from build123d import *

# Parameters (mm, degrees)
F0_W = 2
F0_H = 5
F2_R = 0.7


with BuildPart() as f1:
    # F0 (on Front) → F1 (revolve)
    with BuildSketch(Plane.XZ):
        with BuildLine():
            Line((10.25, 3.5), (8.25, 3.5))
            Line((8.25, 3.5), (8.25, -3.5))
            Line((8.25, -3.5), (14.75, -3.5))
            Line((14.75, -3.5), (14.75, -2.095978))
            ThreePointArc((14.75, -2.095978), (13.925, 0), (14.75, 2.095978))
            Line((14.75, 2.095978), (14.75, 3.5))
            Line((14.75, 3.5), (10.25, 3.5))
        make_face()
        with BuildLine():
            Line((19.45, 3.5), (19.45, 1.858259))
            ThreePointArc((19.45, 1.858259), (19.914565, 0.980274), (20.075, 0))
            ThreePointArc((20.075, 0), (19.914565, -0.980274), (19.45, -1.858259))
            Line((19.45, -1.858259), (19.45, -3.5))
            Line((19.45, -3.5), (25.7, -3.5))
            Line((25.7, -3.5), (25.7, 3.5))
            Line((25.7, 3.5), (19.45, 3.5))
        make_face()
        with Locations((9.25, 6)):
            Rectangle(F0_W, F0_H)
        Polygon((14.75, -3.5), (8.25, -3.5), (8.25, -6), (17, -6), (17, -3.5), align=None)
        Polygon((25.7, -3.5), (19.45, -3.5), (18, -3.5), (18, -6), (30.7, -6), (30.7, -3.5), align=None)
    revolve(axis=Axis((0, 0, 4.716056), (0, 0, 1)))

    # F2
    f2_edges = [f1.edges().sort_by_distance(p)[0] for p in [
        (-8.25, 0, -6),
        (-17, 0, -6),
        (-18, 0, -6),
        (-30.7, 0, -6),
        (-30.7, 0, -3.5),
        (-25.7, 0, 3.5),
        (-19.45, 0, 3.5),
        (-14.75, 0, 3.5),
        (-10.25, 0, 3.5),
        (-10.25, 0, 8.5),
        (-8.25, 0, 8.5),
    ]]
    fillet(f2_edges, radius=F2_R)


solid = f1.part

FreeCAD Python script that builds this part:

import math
import FreeCAD as App
import Part
import Sketcher
Q = App.Units.Quantity


def edges_at(feature, points):
    """Names of the edges that pass closest to the given points."""
    edges = feature.Shape.Edges
    near = lambda p: min(range(len(edges)), key=lambda i: edges[i].distToShape(Part.Vertex(*p))[0])
    return sorted({f"Edge{near(p) + 1}" for p in points})

doc = App.newDocument("Part")
body = doc.addObject("PartDesign::Body", "Body")
body.AllowCompound = True

sketch1 = body.newObject("Sketcher::SketchObject", "Sketch")
sketch1.AttachmentSupport = (doc.getObject("XZ_Plane"), [""])
sketch1.MapMode = "FlatFace"
sketch1.addGeometry(Part.LineSegment(App.Vector(14.8, -3.5, 0), App.Vector(14.8, -2.1, 0)), False)
sketch1.addGeometry(Part.ArcOfCircle(Part.Circle(App.Vector(17, 0, 0), App.Vector(0, 0, 1), 3.1), math.radians(137), math.radians(223)), False)
sketch1.addGeometry(Part.LineSegment(App.Vector(14.8, 2.1, 0), App.Vector(14.8, 3.5, 0)), False)
sketch1.addGeometry(Part.LineSegment(App.Vector(14.8, 3.5, 0), App.Vector(10.2, 3.5, 0)), False)
sketch1.addGeometry(Part.LineSegment(App.Vector(10.2, 3.5, 0), App.Vector(10.2, 8.5, 0)), False)
sketch1.addGeometry(Part.LineSegment(App.Vector(10.2, 8.5, 0), App.Vector(8.2, 8.5, 0)), False)
sketch1.addGeometry(Part.LineSegment(App.Vector(8.2, 8.5, 0), App.Vector(8.2, -6, 0)), False)
sketch1.addGeometry(Part.LineSegment(App.Vector(8.2, -6, 0), App.Vector(17, -6, 0)), False)
sketch1.addGeometry(Part.LineSegment(App.Vector(17, -6, 0), App.Vector(17, -3.5, 0)), False)
sketch1.addGeometry(Part.LineSegment(App.Vector(17, -3.5, 0), App.Vector(14.8, -3.5, 0)), False)
sketch1.addGeometry(Part.LineSegment(App.Vector(19.4, 3.5, 0), App.Vector(19.4, 1.9, 0)), False)
sketch1.addGeometry(Part.ArcOfCircle(Part.Circle(App.Vector(17, 0, 0), App.Vector(0, 0, 1), 3.1), math.radians(0), math.radians(37)), False)
sketch1.addGeometry(Part.ArcOfCircle(Part.Circle(App.Vector(17, 0, 0), App.Vector(0, 0, 1), 3.1), math.radians(-37), math.radians(0)), False)
sketch1.addGeometry(Part.LineSegment(App.Vector(19.4, -1.9, 0), App.Vector(19.4, -3.5, 0)), False)
sketch1.addGeometry(Part.LineSegment(App.Vector(19.4, -3.5, 0), App.Vector(18, -3.5, 0)), False)
sketch1.addGeometry(Part.LineSegment(App.Vector(18, -3.5, 0), App.Vector(18, -6, 0)), False)
sketch1.addGeometry(Part.LineSegment(App.Vector(18, -6, 0), App.Vector(30.7, -6, 0)), False)
sketch1.addGeometry(Part.LineSegment(App.Vector(30.7, -6, 0), App.Vector(30.7, -3.5, 0)), False)
sketch1.addGeometry(Part.LineSegment(App.Vector(30.7, -3.5, 0), App.Vector(25.7, -3.5, 0)), False)
sketch1.addGeometry(Part.LineSegment(App.Vector(25.7, -3.5, 0), App.Vector(25.7, 3.5, 0)), False)
sketch1.addGeometry(Part.LineSegment(App.Vector(25.7, 3.5, 0), App.Vector(19.4, 3.5, 0)), False)
sketch1.addConstraint(Sketcher.Constraint("Coincident", 0, 2, 1, 2))
sketch1.addConstraint(Sketcher.Constraint("Coincident", 1, 1, 2, 1))
sketch1.addConstraint(Sketcher.Constraint("Coincident", 2, 2, 3, 1))
sketch1.addConstraint(Sketcher.Constraint("Coincident", 3, 2, 4, 1))
sketch1.addConstraint(Sketcher.Constraint("Coincident", 4, 2, 5, 1))
sketch1.addConstraint(Sketcher.Constraint("Coincident", 5, 2, 6, 1))
sketch1.addConstraint(Sketcher.Constraint("Coincident", 6, 2, 7, 1))
sketch1.addConstraint(Sketcher.Constraint("Coincident", 7, 2, 8, 1))
sketch1.addConstraint(Sketcher.Constraint("Coincident", 8, 2, 9, 1))
sketch1.addConstraint(Sketcher.Constraint("Coincident", 9, 2, 0, 1))
sketch1.addConstraint(Sketcher.Constraint("Coincident", 10, 2, 11, 2))
sketch1.addConstraint(Sketcher.Constraint("Tangent", 11, 1, 12, 2))
sketch1.addConstraint(Sketcher.Constraint("Coincident", 12, 1, 13, 1))
sketch1.addConstraint(Sketcher.Constraint("Coincident", 13, 2, 14, 1))
sketch1.addConstraint(Sketcher.Constraint("Coincident", 14, 2, 15, 1))
sketch1.addConstraint(Sketcher.Constraint("Coincident", 15, 2, 16, 1))
sketch1.addConstraint(Sketcher.Constraint("Coincident", 16, 2, 17, 1))
sketch1.addConstraint(Sketcher.Constraint("Coincident", 17, 2, 18, 1))
sketch1.addConstraint(Sketcher.Constraint("Coincident", 18, 2, 19, 1))
sketch1.addConstraint(Sketcher.Constraint("Coincident", 19, 2, 20, 1))
sketch1.addConstraint(Sketcher.Constraint("Coincident", 20, 2, 10, 1))
sketch1.addConstraint(Sketcher.Constraint("Vertical", 0))
sketch1.addConstraint(Sketcher.Constraint("Vertical", 2))
sketch1.addConstraint(Sketcher.Constraint("Horizontal", 3))
sketch1.addConstraint(Sketcher.Constraint("Vertical", 4))
sketch1.addConstraint(Sketcher.Constraint("Horizontal", 5))
sketch1.addConstraint(Sketcher.Constraint("Vertical", 6))
sketch1.addConstraint(Sketcher.Constraint("Horizontal", 7))
sketch1.addConstraint(Sketcher.Constraint("Vertical", 8))
sketch1.addConstraint(Sketcher.Constraint("Horizontal", 9))
sketch1.addConstraint(Sketcher.Constraint("Vertical", 10))
sketch1.addConstraint(Sketcher.Constraint("Vertical", 13))
sketch1.addConstraint(Sketcher.Constraint("Horizontal", 14))
sketch1.addConstraint(Sketcher.Constraint("Vertical", 15))
sketch1.addConstraint(Sketcher.Constraint("Horizontal", 16))
sketch1.addConstraint(Sketcher.Constraint("Vertical", 17))
sketch1.addConstraint(Sketcher.Constraint("Horizontal", 18))
sketch1.addConstraint(Sketcher.Constraint("Vertical", 19))
sketch1.addConstraint(Sketcher.Constraint("Horizontal", 20))
sketch1.addConstraint(Sketcher.Constraint("Coincident", 11, 3, 1, 3))
sketch1.addConstraint(Sketcher.Constraint("Equal", 1, 11))
sketch1.addConstraint(Sketcher.Constraint("Equal", 11, 12))
sketch1.addConstraint(Sketcher.Constraint("Symmetric", 0, 2, 1, 1, -1))
sketch1.addConstraint(Sketcher.Constraint("Symmetric", 13, 2, 20, 2, -1))
sketch1.addConstraint(Sketcher.Constraint("PointOnObject", 11, 1, -1))
sketch1.addConstraint(Sketcher.Constraint("Horizontal", 9, 2, 13, 2))
sketch1.addConstraint(Sketcher.Constraint("Horizontal", 7, 2, 15, 2))
sketch1.addConstraint(Sketcher.Constraint("Horizontal", 14, 2, 17, 2))
sketch1.addConstraint(Sketcher.Constraint("Horizontal", 3, 2, 19, 2))
sketch1.addConstraint(Sketcher.Constraint("Vertical", 12, 3, 7, 2))
sketch1.addConstraint(Sketcher.Constraint("Equal", 18, 4))
sketch1.addConstraint(Sketcher.Constraint("DistanceX", 5, 2, 5, 1, Q("2 mm")))
sketch1.addConstraint(Sketcher.Constraint("DistanceX", 18, 2, 18, 1, Q("5 mm")))
sketch1.addConstraint(Sketcher.Constraint("DistanceY", 19, 1, 19, 2, Q("7 mm")))
sketch1.addConstraint(Sketcher.Constraint("DistanceX", 3, 2, 3, 1, Q("4.5 mm")))
sketch1.addConstraint(Sketcher.Constraint("DistanceX", 16, 1, 16, 2, Q("12.7 mm")))
sketch1.addConstraint(Sketcher.Constraint("DistanceY", 6, 2, 6, 1, Q("14.5 mm")))
sketch1.addConstraint(Sketcher.Constraint("DistanceX", -1, 1, 1, 3, Q("16.999999 mm")))
sketch1.addConstraint(Sketcher.Constraint("DistanceX", -1, 1, 14, 2, Q("18 mm")))
sketch1.addConstraint(Sketcher.Constraint("Radius", 1, Q("3.074999 mm")))
sketch1.addConstraint(Sketcher.Constraint("DistanceX", 7, 1, 7, 2, Q("8.75 mm")))
sketch1.addConstraint(Sketcher.Constraint("DistanceX", 14, 2, 14, 1, Q("1.45 mm")))
revolution = body.newObject("PartDesign::Revolution", "Revolution")
revolution.Profile = sketch1
revolution.ReferenceAxis = (sketch1, ["V_Axis"])
revolution.Angle = 360
doc.recompute()

fillet = body.newObject("PartDesign::Fillet", "Fillet")
fillet.Base = (revolution, edges_at(revolution, [
    (-8.25, 0, -6),
    (-17, 0, -6),
    (-18, 0, -6),
    (-30.7, 0, -6),
    (-30.7, 0, -3.5),
    (-25.7, 0, 3.5),
    (-19.45, 0, 3.5),
    (-14.75, 0, 3.5),
    (-10.25, 0, 3.5),
    (-10.25, 0, 8.5),
    (-8.25, 0, 8.5),
]))
fillet.Radius = 0.7

doc.recompute()
